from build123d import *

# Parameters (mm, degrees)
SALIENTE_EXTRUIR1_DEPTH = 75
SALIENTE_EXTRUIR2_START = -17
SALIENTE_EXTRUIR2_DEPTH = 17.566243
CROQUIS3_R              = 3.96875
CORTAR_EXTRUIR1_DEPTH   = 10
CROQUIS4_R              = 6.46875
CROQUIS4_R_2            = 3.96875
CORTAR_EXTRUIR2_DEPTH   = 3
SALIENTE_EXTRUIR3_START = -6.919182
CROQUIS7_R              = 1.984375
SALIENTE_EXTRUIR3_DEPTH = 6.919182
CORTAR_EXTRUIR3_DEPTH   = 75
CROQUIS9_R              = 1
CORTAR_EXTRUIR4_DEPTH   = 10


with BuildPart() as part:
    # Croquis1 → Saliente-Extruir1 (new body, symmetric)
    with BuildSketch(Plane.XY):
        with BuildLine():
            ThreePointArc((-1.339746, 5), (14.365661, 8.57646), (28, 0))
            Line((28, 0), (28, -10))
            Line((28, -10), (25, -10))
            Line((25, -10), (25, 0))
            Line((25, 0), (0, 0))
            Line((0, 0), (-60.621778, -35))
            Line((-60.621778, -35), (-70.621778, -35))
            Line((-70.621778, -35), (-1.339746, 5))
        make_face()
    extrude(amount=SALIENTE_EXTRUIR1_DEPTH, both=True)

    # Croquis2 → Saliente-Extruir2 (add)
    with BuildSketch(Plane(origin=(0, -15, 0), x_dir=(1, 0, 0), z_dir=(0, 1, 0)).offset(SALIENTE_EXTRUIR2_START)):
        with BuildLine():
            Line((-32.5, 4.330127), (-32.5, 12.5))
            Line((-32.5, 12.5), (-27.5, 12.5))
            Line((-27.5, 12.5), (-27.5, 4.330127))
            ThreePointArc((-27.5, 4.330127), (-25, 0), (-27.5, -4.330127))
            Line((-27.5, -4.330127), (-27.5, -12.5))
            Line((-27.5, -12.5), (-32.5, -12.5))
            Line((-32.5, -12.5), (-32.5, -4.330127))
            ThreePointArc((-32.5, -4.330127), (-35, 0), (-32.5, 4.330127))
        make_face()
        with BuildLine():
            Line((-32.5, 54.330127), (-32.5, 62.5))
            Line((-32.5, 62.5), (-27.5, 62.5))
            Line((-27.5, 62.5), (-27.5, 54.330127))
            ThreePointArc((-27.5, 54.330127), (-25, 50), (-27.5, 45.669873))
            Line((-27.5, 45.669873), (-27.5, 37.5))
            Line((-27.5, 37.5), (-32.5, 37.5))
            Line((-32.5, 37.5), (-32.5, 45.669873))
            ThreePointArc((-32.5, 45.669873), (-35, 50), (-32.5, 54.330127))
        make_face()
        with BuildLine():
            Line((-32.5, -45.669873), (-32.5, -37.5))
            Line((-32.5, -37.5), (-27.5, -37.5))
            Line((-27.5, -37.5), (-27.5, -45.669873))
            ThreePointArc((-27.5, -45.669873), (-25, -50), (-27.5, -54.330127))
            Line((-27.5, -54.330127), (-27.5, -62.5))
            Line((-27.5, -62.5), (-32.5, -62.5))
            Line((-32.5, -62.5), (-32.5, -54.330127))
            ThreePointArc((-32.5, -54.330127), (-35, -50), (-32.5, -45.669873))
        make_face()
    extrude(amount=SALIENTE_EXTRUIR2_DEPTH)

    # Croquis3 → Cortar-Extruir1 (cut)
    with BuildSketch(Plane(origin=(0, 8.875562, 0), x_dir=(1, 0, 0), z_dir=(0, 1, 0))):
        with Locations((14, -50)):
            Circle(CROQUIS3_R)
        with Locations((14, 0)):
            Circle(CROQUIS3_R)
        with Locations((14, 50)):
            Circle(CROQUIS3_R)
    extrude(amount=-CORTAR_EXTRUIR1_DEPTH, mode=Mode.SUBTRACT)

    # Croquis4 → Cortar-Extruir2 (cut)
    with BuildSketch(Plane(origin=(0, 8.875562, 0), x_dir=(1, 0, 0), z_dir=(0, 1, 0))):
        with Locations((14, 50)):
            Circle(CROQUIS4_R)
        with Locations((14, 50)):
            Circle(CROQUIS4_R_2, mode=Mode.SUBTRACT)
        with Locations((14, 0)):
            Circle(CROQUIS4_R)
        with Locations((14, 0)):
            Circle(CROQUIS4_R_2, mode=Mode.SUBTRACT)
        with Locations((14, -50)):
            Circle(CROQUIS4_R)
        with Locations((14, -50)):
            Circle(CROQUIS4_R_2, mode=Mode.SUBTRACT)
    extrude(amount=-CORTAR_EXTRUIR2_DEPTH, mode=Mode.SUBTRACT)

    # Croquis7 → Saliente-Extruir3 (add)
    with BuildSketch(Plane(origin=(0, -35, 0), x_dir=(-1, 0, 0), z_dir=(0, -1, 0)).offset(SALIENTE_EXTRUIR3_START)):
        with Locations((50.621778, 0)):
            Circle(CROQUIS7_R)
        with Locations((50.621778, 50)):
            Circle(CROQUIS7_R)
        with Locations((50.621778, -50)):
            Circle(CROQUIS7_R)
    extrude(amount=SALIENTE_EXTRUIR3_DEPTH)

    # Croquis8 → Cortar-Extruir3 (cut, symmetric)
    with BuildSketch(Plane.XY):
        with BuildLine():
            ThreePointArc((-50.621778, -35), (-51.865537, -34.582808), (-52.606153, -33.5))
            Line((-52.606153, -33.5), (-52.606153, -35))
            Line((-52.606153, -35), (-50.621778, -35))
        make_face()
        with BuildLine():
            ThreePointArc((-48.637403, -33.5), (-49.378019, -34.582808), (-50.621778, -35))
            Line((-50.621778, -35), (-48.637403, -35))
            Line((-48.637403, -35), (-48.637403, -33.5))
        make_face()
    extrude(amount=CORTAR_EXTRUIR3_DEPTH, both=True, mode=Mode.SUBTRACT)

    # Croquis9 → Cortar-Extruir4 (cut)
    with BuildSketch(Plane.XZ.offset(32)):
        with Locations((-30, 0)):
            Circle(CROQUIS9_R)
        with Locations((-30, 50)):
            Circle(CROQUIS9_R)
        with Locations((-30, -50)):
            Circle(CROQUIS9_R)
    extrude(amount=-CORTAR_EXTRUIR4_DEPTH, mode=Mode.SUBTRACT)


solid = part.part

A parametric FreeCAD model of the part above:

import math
import FreeCAD as App
import Part
import Sketcher

V = App.Vector
Q = App.Units.Quantity

doc = App.newDocument("Part")
body = doc.addObject("PartDesign::Body", "Body")

# Sketch on XY plane
sketch1 = doc.addObject("Sketcher::SketchObject", "Sketch")
body.addObject(sketch1)
sketch1.AttachmentSupport = (doc.XY_Plane, [""])
sketch1.MapMode = "FlatFace"
sketch1.addGeometry([
    Part.ArcOfCircle(Part.Circle(V(10.8, -12.2, 0), V(0, 0, 1), 21), math.radians(35), math.radians(125)),  # 0
    Part.LineSegment(V(-1.3, 5, 0), V(-70.6, -35, 0)),  # 1
    Part.LineSegment(V(-70.6, -35, 0), V(-60.6, -35, 0)),  # 2
    Part.LineSegment(V(-60.6, -35, 0), V(0, 0, 0)),  # 3
    Part.LineSegment(V(0, 0, 0), V(25, 0, 0)),  # 4
    Part.LineSegment(V(25, 0, 0), V(25, -10, 0)),  # 5
    Part.LineSegment(V(25, -10, 0), V(28, -10, 0)),  # 6
    Part.LineSegment(V(28, -10, 0), V(28, 0, 0)),  # 7
], False)
sketch1.addConstraint([
    Sketcher.Constraint("Coincident", 0, 2, 1, 1),
    Sketcher.Constraint("Coincident", 1, 2, 2, 1),
    Sketcher.Constraint("Coincident", 2, 2, 3, 1),
    Sketcher.Constraint("Coincident", 3, 2, 4, 1),
    Sketcher.Constraint("Coincident", 4, 2, 5, 1),
    Sketcher.Constraint("Coincident", 5, 2, 6, 1),
    Sketcher.Constraint("Coincident", 6, 2, 7, 1),
    Sketcher.Constraint("Coincident", 7, 2, 0, 1),
    Sketcher.Constraint("Horizontal", 2),
    Sketcher.Constraint("Horizontal", 4),
    Sketcher.Constraint("Vertical", 5),
    Sketcher.Constraint("Horizontal", 6),
    Sketcher.Constraint("Vertical", 7),
    Sketcher.Constraint("Coincident", 3, 2, -1, 1),
    Sketcher.Constraint("PointOnObject", 7, 2, -1),
    Sketcher.Constraint("Parallel", 1, 3),
    Sketcher.Constraint("Equal", 2, 5),
    Sketcher.Constraint("DistanceX", 2, 1, 2, 2, Q("10 mm")),
    Sketcher.Constraint("DistanceX", 4, 1, 4, 2, Q("25 mm")),
    Sketcher.Constraint("DistanceX", 6, 1, 6, 2, Q("3 mm")),
    Sketcher.Constraint("Angle", 1, Q("-150 deg")),
    Sketcher.Constraint("Distance", 1, Q("80 mm")),
    Sketcher.Constraint("Distance", 3, Q("70 mm")),
    Sketcher.Constraint("Radius", 0, Q("21.045436 mm")),
])
pad1 = doc.addObject("PartDesign::Pad", "Pad")
body.addObject(pad1)
pad1.Profile = sketch1
pad1.Length = 150
pad1.Midplane = True

# Sketch on XZ plane
sketch2 = doc.addObject("Sketcher::SketchObject", "Sketch001")
body.addObject(sketch2)
sketch2.AttachmentSupport = (doc.XZ_Plane, [""])
sketch2.MapMode = "FlatFace"
sketch2.AttachmentOffset = App.Placement(V(0, 0, 32), App.Rotation())
sketch2.addGeometry([
    Part.LineSegment(V(-32.5, -12.5, 0), V(-32.5, -4.3, 0)),  # 0
    Part.ArcOfCircle(Part.Circle(V(-30, 0, 0), V(0, 0, 1), 5), math.radians(120), math.radians(240)),  # 1
    Part.LineSegment(V(-32.5, 4.3, 0), V(-32.5, 12.5, 0)),  # 2
    Part.LineSegment(V(-32.5, 12.5, 0), V(-27.5, 12.5, 0)),  # 3
    Part.LineSegment(V(-27.5, 12.5, 0), V(-27.5, 4.3, 0)),  # 4
    Part.ArcOfCircle(Part.Circle(V(-30, 0, 0), V(0, 0, 1), 5), math.radians(-60), math.radians(60)),  # 5
    Part.LineSegment(V(-27.5, -4.3, 0), V(-27.5, -12.5, 0)),  # 6
    Part.LineSegment(V(-27.5, -12.5, 0), V(-32.5, -12.5, 0)),  # 7
    Part.LineSegment(V(-32.5, -62.5, 0), V(-32.5, -54.3, 0)),  # 8
    Part.ArcOfCircle(Part.Circle(V(-30, -50, 0), V(0, 0, 1), 5), math.radians(120), math.radians(240)),  # 9
    Part.LineSegment(V(-32.5, -45.7, 0), V(-32.5, -37.5, 0)),  # 10
    Part.LineSegment(V(-32.5, -37.5, 0), V(-27.5, -37.5, 0)),  # 11
    Part.LineSegment(V(-27.5, -37.5, 0), V(-27.5, -45.7, 0)),  # 12
    Part.ArcOfCircle(Part.Circle(V(-30, -50, 0), V(0, 0, 1), 5), math.radians(-60), math.radians(60)),  # 13
    Part.LineSegment(V(-27.5, -54.3, 0), V(-27.5, -62.5, 0)),  # 14
    Part.LineSegment(V(-27.5, -62.5, 0), V(-32.5, -62.5, 0)),  # 15
    Part.LineSegment(V(-32.5, 37.5, 0), V(-32.5, 45.7, 0)),  # 16
    Part.ArcOfCircle(Part.Circle(V(-30, 50, 0), V(0, 0, 1), 5), math.radians(120), math.radians(240)),  # 17
    Part.LineSegment(V(-32.5, 54.3, 0), V(-32.5, 62.5, 0)),  # 18
    Part.LineSegment(V(-32.5, 62.5, 0), V(-27.5, 62.5, 0)),  # 19
    Part.LineSegment(V(-27.5, 62.5, 0), V(-27.5, 54.3, 0)),  # 20
    Part.ArcOfCircle(Part.Circle(V(-30, 50, 0), V(0, 0, 1), 5), math.radians(-60), math.radians(60)),  # 21
    Part.LineSegment(V(-27.5, 45.7, 0), V(-27.5, 37.5, 0)),  # 22
    Part.LineSegment(V(-27.5, 37.5, 0), V(-32.5, 37.5, 0)),  # 23
], False)
sketch2.addConstraint([
    Sketcher.Constraint("Coincident", 0, 2, 1, 2),
    Sketcher.Constraint("Coincident", 1, 1, 2, 1),
    Sketcher.Constraint("Coincident", 2, 2, 3, 1),
    Sketcher.Constraint("Coincident", 3, 2, 4, 1),
    Sketcher.Constraint("Coincident", 4, 2, 5, 2),
    Sketcher.Constraint("Coincident", 5, 1, 6, 1),
    Sketcher.Constraint("Coincident", 6, 2, 7, 1),
    Sketcher.Constraint("Coincident", 7, 2, 0, 1),
    Sketcher.Constraint("Coincident", 8, 2, 9, 2),
    Sketcher.Constraint("Coincident", 9, 1, 10, 1),
    Sketcher.Constraint("Coincident", 10, 2, 11, 1),
    Sketcher.Constraint("Coincident", 11, 2, 12, 1),
    Sketcher.Constraint("Coincident", 12, 2, 13, 2),
    Sketcher.Constraint("Coincident", 13, 1, 14, 1),
    Sketcher.Constraint("Coincident", 14, 2, 15, 1),
    Sketcher.Constraint("Coincident", 15, 2, 8, 1),
    Sketcher.Constraint("Coincident", 16, 2, 17, 2),
    Sketcher.Constraint("Coincident", 17, 1, 18, 1),
    Sketcher.Constraint("Coincident", 18, 2, 19, 1),
    Sketcher.Constraint("Coincident", 19, 2, 20, 1),
    Sketcher.Constraint("Coincident", 20, 2, 21, 2),
    Sketcher.Constraint("Coincident", 21, 1, 22, 1),
    Sketcher.Constraint("Coincident", 22, 2, 23, 1),
    Sketcher.Constraint("Coincident", 23, 2, 16, 1),
    Sketcher.Constraint("Vertical", 0),
    Sketcher.Constraint("Vertical", 2),
    Sketcher.Constraint("Horizontal", 3),
    Sketcher.Constraint("Vertical", 4),
    Sketcher.Constraint("Vertical", 6),
    Sketcher.Constraint("Horizontal", 7),
    Sketcher.Constraint("Vertical", 8),
    Sketcher.Constraint("Vertical", 10),
    Sketcher.Constraint("Horizontal", 11),
    Sketcher.Constraint("Vertical", 12),
    Sketcher.Constraint("Vertical", 14),
    Sketcher.Constraint("Horizontal", 15),
    Sketcher.Constraint("Vertical", 16),
    Sketcher.Constraint("Vertical", 18),
    Sketcher.Constraint("Horizontal", 19),
    Sketcher.Constraint("Vertical", 20),
    Sketcher.Constraint("Vertical", 22),
    Sketcher.Constraint("Horizontal", 23),
    Sketcher.Constraint("Coincident", 5, 3, 1, 3),
    Sketcher.Constraint("Coincident", 13, 3, 9, 3),
    Sketcher.Constraint("Coincident", 21, 3, 17, 3),
    Sketcher.Constraint("Equal", 1, 5),
    Sketcher.Constraint("Equal", 5, 9),
    Sketcher.Constraint("Equal", 9, 13),
    Sketcher.Constraint("Equal", 13, 17),
    Sketcher.Constraint("Equal", 17, 21),
    Sketcher.Constraint("Symmetric", 9, 3, 17, 3, -1),
    Sketcher.Constraint("Symmetric", 0, 2, 1, 1, -1),
    Sketcher.Constraint("Symmetric", 3, 2, 6, 2, -1),
    Sketcher.Constraint("Symmetric", 15, 2, 18, 2, -1),
    Sketcher.Constraint("Symmetric", 11, 2, 22, 2, -1),
    Sketcher.Constraint("Horizontal", 1, 1, 4, 2),
    Sketcher.Constraint("Horizontal", 9, 1, 12, 2),
    Sketcher.Constraint("Horizontal", 8, 2, 13, 1),
    Sketcher.Constraint("Horizontal", 17, 1, 20, 2),
    Sketcher.Constraint("Horizontal", 16, 2, 21, 1),
    Sketcher.Constraint("Vertical", 5, 3, 9, 3),
    Sketcher.Constraint("Vertical", 7, 2, 8, 2),
    Sketcher.Constraint("Vertical", 8, 2, 9, 1),
    Sketcher.Constraint("Equal", 6, 8),
    Sketcher.Constraint("Equal", 8, 10),
    Sketcher.Constraint("Radius", 1, Q("5 mm")),
    Sketcher.Constraint("DistanceX", 3, 1, 3, 2, Q("5 mm")),
    Sketcher.Constraint("DistanceX", 1, 3, -1, 1, Q("30 mm")),
    Sketcher.Constraint("DistanceY", 9, 3, -1, 1, Q("50 mm")),
    Sketcher.Constraint("DistanceY", 10, 2, 7, 2, Q("25 mm")),
])
pad2 = doc.addObject("PartDesign::Pad", "Pad001")
body.addObject(pad2)
pad2.Profile = sketch2
pad2.Length = 17.566243
pad2.Reversed = True

# Sketch on XZ plane
sketch3 = doc.addObject("Sketcher::SketchObject", "Sketch002")
body.addObject(sketch3)
sketch3.AttachmentSupport = (doc.XZ_Plane, [""])
sketch3.MapMode = "FlatFace"
sketch3.AttachmentOffset = App.Placement(V(0, 0, -8.875562), App.Rotation())
sketch3.addGeometry([
    Part.Circle(V(14, 50, 0), V(0, 0, 1), 4),
    Part.Circle(V(14, 0, 0), V(0, 0, 1), 4),
    Part.Circle(V(14, -50, 0), V(0, 0, 1), 4),
], False)
sketch3.addConstraint([
    Sketcher.Constraint("Equal", 0, 1),
    Sketcher.Constraint("Equal", 1, 2),
    Sketcher.Constraint("Symmetric", 0, 3, 2, 3, -1),
    Sketcher.Constraint("PointOnObject", 1, 3, -1),
    Sketcher.Constraint("Vertical", 0, 3, 1, 3),
    Sketcher.Constraint("DistanceX", -1, 1, 0, 3, Q("14 mm")),
    Sketcher.Constraint("DistanceY", -1, 1, 0, 3, Q("50 mm")),
    Sketcher.Constraint("Diameter", 0, Q("7.9375 mm")),
])
pocket1 = doc.addObject("PartDesign::Pocket", "Pocket")
body.addObject(pocket1)
pocket1.Profile = sketch3
pocket1.Length = 10
pocket1.Reversed = True

# Sketch on XZ plane
sketch4 = doc.addObject("Sketcher::SketchObject", "Sketch003")
body.addObject(sketch4)
sketch4.AttachmentSupport = (doc.XZ_Plane, [""])
sketch4.MapMode = "FlatFace"
sketch4.AttachmentOffset = App.Placement(V(0, 0, -8.875562), App.Rotation())
sketch4.addGeometry([
    Part.Circle(V(14, -50, 0), V(0, 0, 1), 6.5),  # 0
    Part.Circle(V(14, -50, 0), V(0, 0, 1), 4),  # 1
    Part.Circle(V(14, 0, 0), V(0, 0, 1), 6.5),  # 2
    Part.Circle(V(14, 0, 0), V(0, 0, 1), 4),  # 3
    Part.Circle(V(14, 50, 0), V(0, 0, 1), 6.5),  # 4
    Part.Circle(V(14, 50, 0), V(0, 0, 1), 4),  # 5
], False)
sketch4.addConstraint([
    Sketcher.Constraint("Coincident", 1, 3, 0, 3),
    Sketcher.Constraint("Coincident", 3, 3, 2, 3),
    Sketcher.Constraint("Coincident", 5, 3, 4, 3),
    Sketcher.Constraint("Equal", 0, 2),
    Sketcher.Constraint("Equal", 1, 3),
    Sketcher.Constraint("Equal", 2, 4),
    Sketcher.Constraint("Equal", 3, 5),
    Sketcher.Constraint("Symmetric", 0, 3, 4, 3, -1),
    Sketcher.Constraint("PointOnObject", 2, 3, -1),
    Sketcher.Constraint("Vertical", 1, 3, 2, 3),
    Sketcher.Constraint("DistanceX", -1, 1, 0, 3, Q("14 mm")),
    Sketcher.Constraint("DistanceY", 0, 3, -1, 1, Q("50 mm")),
    Sketcher.Constraint("Diameter", 0, Q("12.9375 mm")),
    Sketcher.Constraint("Diameter", 1, Q("7.9375 mm")),
])
pocket2 = doc.addObject("PartDesign::Pocket", "Pocket001")
body.addObject(pocket2)
pocket2.Profile = sketch4
pocket2.Length = 3
pocket2.Reversed = True

# Sketch on XZ plane
sketch5 = doc.addObject("Sketcher::SketchObject", "Sketch004")
body.addObject(sketch5)
sketch5.AttachmentSupport = (doc.XZ_Plane, [""])
sketch5.MapMode = "FlatFace"
sketch5.AttachmentOffset = App.Placement(V(0, 0, 28.080818), App.Rotation())
sketch5.addGeometry([
    Part.Circle(V(-50.6, 0, 0), V(0, 0, 1), 2),
    Part.Circle(V(-50.6, -50, 0), V(0, 0, 1), 2),
    Part.Circle(V(-50.6, 50, 0), V(0, 0, 1), 2),
], False)
sketch5.addConstraint([
    Sketcher.Constraint("Equal", 0, 1),
    Sketcher.Constraint("Equal", 1, 2),
    Sketcher.Constraint("Symmetric", 1, 3, 2, 3, -1),
    Sketcher.Constraint("PointOnObject", 0, 3, -1),
    Sketcher.Constraint("Vertical", 0, 3, 1, 3),
    Sketcher.Constraint("DistanceY", 1, 3, -1, 1, Q("50 mm")),
    Sketcher.Constraint("Diameter", 0, Q("3.96875 mm")),
    Sketcher.Constraint("DistanceX", 0, 3, -1, 1, Q("50.621778 mm")),
])
pad3 = doc.addObject("PartDesign::Pad", "Pad002")
body.addObject(pad3)
pad3.Profile = sketch5
pad3.Length = 6.919182

# Sketch on XY plane
sketch6 = doc.addObject("Sketcher::SketchObject", "Sketch005")
body.addObject(sketch6)
sketch6.AttachmentSupport = (doc.XY_Plane, [""])
sketch6.MapMode = "FlatFace"
sketch6.addGeometry([
    Part.ArcOfCircle(Part.Circle(V(-50.6, -32.9, 0), V(0, 0, 1), 2.1), math.radians(-164), math.radians(-90)),  # 0
    Part.LineSegment(V(-52.6, -33.5, 0), V(-52.6, -35, 0)),  # 1
    Part.LineSegment(V(-52.6, -35, 0), V(-50.6, -35, 0)),  # 2
    Part.ArcOfCircle(Part.Circle(V(-50.6, -32.9, 0), V(0, 0, 1), 2.1), math.radians(-90), math.radians(-16)),  # 3
    Part.LineSegment(V(-50.6, -35, 0), V(-48.6, -35, 0)),  # 4
    Part.LineSegment(V(-48.6, -35, 0), V(-48.6, -33.5, 0)),  # 5
], False)
sketch6.addConstraint([
    Sketcher.Constraint("Coincident", 0, 1, 1, 1),
    Sketcher.Constraint("Coincident", 1, 2, 2, 1),
    Sketcher.Constraint("Tangent", 2, 2, 0, 2),
    Sketcher.Constraint("Tangent", 3, 1, 4, 1),
    Sketcher.Constraint("Coincident", 4, 2, 5, 1),
    Sketcher.Constraint("Coincident", 5, 2, 3, 2),
    Sketcher.Constraint("Vertical", 1),
    Sketcher.Constraint("Horizontal", 2),
    Sketcher.Constraint("Horizontal", 4),
    Sketcher.Constraint("Vertical", 5),
    Sketcher.Constraint("Coincident", 3, 3, 0, 3),
    Sketcher.Constraint("Equal", 0, 3),
    Sketcher.Constraint("Horizontal", 0, 1, 5, 2),
    Sketcher.Constraint("DistanceY", 1, 2, 1, 1, Q("1.5 mm")),
    Sketcher.Constraint("DistanceY", 1, 2, -1, 1, Q("35 mm")),
    Sketcher.Constraint("Radius", 0, Q("2.062581 mm")),
    Sketcher.Constraint("DistanceX", 0, 3, -1, 1, Q("50.621779 mm")),
])
pocket3 = doc.addObject("PartDesign::Pocket", "Pocket002")
body.addObject(pocket3)
pocket3.Profile = sketch6
pocket3.Length = 150
pocket3.Midplane = True

# Sketch on XZ plane
sketch7 = doc.addObject("Sketcher::SketchObject", "Sketch006")
body.addObject(sketch7)
sketch7.AttachmentSupport = (doc.XZ_Plane, [""])
sketch7.MapMode = "FlatFace"
sketch7.AttachmentOffset = App.Placement(V(0, 0, 32), App.Rotation())
sketch7.addGeometry([
    Part.Circle(V(-30, 0, 0), V(0, 0, 1), 1),
    Part.Circle(V(-30, 50, 0), V(0, 0, 1), 1),
    Part.Circle(V(-30, -50, 0), V(0, 0, 1), 1),
], False)
sketch7.addConstraint([
    Sketcher.Constraint("Equal", 0, 1),
    Sketcher.Constraint("Equal", 1, 2),
    Sketcher.Constraint("Symmetric", 1, 3, 2, 3, -1),
    Sketcher.Constraint("PointOnObject", 0, 3, -1),
    Sketcher.Constraint("Vertical", 0, 3, 1, 3),
    Sketcher.Constraint("Diameter", 0, Q("2 mm")),
    Sketcher.Constraint("DistanceX", 0, 3, -1, 1, Q("30 mm")),
    Sketcher.Constraint("DistanceY", -1, 1, 1, 3, Q("50 mm")),
])
pocket4 = doc.addObject("PartDesign::Pocket", "Pocket003")
body.addObject(pocket4)
pocket4.Profile = sketch7
pocket4.Length = 10

doc.recompute()
